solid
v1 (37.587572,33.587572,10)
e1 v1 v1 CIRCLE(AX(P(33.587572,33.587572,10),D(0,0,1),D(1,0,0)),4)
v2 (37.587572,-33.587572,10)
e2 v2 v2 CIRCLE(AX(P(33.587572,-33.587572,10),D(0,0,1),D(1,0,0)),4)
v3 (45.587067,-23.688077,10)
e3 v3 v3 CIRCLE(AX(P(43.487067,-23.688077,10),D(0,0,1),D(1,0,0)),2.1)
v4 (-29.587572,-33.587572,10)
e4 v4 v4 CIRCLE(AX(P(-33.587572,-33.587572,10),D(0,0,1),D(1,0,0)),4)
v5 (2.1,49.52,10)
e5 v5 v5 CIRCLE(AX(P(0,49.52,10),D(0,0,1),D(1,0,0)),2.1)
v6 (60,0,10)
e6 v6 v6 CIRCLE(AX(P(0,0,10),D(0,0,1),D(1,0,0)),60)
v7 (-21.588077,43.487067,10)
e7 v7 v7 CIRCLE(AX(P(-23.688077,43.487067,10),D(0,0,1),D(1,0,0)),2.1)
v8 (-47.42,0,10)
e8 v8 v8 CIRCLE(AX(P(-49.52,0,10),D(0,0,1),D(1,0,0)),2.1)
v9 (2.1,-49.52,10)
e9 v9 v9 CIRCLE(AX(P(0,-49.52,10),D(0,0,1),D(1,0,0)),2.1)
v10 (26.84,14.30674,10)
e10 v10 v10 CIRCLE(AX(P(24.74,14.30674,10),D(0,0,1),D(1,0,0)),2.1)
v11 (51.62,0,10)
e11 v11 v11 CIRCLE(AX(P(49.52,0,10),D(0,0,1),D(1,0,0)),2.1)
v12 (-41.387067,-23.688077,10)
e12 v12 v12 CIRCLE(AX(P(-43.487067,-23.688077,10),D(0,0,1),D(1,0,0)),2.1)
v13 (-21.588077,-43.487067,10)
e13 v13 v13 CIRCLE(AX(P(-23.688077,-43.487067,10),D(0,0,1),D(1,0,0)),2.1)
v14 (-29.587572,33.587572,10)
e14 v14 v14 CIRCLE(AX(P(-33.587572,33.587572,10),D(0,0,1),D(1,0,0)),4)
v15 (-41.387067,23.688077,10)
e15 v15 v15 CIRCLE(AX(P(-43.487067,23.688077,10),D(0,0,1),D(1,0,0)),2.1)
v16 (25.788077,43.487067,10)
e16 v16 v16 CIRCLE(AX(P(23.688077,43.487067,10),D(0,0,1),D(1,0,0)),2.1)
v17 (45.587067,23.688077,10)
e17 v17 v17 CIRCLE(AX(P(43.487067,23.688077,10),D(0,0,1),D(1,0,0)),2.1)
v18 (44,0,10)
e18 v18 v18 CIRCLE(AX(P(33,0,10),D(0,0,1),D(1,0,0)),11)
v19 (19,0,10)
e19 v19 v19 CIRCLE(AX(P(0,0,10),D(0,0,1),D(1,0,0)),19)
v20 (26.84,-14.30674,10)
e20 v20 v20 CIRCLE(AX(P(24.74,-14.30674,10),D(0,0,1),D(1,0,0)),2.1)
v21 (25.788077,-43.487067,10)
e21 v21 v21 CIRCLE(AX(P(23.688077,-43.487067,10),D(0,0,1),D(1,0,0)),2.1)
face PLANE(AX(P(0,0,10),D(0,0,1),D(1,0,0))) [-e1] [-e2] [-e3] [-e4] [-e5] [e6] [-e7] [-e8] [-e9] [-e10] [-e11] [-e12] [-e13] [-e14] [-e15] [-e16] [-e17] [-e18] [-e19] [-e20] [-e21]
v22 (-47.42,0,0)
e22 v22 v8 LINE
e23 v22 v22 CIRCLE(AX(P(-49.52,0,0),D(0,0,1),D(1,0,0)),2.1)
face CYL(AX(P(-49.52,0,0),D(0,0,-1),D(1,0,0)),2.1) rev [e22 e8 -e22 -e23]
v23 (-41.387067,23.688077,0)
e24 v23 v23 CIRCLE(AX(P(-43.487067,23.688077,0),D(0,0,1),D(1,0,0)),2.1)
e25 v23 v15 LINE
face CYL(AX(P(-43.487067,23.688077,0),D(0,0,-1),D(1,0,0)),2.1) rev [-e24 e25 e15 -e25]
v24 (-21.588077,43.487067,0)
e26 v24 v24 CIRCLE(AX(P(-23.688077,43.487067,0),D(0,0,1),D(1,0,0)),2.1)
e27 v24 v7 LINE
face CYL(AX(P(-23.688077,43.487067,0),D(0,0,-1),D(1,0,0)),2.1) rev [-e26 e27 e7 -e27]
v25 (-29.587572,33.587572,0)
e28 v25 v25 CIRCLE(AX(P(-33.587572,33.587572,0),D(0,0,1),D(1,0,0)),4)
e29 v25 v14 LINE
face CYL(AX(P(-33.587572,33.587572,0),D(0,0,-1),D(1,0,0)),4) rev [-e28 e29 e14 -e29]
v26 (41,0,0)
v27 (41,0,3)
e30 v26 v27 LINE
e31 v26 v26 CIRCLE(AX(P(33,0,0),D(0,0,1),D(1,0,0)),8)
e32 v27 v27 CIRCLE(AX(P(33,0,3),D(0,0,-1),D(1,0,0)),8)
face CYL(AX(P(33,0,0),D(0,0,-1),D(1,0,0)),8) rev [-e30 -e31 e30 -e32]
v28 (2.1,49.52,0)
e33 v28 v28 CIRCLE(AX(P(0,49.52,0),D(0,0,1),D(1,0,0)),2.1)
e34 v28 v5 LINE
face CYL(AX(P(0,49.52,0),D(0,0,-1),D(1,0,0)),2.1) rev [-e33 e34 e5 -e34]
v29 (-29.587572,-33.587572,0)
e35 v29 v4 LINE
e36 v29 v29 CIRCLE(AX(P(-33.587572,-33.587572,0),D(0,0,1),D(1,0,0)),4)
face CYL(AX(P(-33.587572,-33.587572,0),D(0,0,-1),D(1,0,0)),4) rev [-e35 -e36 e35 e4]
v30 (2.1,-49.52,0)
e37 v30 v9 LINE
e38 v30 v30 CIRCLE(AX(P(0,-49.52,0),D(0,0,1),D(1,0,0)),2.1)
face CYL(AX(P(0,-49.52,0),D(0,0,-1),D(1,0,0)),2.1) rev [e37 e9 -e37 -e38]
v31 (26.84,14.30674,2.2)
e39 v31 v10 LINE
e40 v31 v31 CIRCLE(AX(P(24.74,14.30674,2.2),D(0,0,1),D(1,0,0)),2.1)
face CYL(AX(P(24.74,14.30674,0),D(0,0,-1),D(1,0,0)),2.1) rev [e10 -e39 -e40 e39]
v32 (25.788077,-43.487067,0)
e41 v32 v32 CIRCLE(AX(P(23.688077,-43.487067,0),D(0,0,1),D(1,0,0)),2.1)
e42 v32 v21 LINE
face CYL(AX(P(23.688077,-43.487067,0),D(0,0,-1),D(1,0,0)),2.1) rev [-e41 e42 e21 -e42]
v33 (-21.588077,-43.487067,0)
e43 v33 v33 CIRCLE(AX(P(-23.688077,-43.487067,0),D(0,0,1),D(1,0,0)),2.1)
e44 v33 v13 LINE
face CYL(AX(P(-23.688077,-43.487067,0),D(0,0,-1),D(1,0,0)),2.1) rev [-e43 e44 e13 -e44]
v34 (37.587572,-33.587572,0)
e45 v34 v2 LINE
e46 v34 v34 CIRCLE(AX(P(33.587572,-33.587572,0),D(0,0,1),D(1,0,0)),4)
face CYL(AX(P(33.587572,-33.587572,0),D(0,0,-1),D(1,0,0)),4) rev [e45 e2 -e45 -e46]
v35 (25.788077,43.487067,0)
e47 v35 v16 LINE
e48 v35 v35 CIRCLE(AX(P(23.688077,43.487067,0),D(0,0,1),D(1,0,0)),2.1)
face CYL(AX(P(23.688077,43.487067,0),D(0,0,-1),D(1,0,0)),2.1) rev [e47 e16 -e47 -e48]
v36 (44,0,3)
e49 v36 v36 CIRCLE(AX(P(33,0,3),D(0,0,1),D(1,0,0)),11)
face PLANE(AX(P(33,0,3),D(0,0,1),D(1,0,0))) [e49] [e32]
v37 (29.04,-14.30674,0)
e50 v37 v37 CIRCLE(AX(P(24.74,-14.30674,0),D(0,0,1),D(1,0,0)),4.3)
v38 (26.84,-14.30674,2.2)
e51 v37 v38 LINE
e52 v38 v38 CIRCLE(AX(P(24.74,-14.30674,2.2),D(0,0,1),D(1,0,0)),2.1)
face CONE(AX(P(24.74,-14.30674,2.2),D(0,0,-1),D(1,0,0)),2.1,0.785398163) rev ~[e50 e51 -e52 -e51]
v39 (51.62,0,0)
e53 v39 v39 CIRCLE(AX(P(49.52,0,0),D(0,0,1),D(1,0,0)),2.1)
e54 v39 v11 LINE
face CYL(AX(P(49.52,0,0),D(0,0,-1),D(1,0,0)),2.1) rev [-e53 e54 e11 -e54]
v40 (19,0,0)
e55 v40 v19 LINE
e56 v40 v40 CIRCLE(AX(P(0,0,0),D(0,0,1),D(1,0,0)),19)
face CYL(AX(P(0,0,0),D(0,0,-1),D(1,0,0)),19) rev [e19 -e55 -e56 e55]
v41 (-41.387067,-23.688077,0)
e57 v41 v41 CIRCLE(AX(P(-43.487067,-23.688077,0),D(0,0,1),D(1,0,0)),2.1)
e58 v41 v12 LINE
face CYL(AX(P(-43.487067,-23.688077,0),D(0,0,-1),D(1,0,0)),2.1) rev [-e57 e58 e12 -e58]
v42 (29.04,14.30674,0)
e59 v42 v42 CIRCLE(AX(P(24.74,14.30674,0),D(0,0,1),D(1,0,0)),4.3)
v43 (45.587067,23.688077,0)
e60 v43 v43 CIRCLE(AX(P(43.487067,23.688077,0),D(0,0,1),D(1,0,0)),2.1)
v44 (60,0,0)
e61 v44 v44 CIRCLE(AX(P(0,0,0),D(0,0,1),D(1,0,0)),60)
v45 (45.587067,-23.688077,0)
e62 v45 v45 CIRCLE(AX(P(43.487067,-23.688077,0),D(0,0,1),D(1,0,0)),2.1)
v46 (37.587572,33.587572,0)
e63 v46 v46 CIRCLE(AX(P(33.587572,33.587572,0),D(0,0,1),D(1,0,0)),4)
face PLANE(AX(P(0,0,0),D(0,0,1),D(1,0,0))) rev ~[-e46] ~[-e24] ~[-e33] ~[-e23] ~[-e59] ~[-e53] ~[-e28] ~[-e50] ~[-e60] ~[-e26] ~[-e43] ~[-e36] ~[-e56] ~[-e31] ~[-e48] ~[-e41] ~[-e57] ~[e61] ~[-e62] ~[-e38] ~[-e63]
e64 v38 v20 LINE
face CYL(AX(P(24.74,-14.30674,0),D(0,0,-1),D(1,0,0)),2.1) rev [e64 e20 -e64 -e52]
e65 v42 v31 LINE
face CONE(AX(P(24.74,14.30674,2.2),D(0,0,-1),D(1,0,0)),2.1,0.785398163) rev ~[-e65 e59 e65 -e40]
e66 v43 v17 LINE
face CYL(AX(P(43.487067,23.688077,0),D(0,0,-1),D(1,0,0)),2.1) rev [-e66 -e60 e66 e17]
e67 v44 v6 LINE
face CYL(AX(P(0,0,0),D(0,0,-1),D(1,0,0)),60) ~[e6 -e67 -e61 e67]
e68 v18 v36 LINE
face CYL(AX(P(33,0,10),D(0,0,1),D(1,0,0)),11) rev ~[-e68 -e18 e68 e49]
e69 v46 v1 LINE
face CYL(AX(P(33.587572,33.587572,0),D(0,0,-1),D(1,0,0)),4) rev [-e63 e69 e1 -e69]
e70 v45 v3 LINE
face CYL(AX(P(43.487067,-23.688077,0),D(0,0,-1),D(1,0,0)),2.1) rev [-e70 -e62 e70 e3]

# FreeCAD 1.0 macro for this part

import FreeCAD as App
import Part
import Sketcher

V = App.Vector
Q = App.Units.Quantity


def edges_at(feature, points):
    """Names of the edges that pass closest to the given points."""
    edges = feature.Shape.Edges
    near = lambda p: min(range(len(edges)), key=lambda i: edges[i].distToShape(Part.Vertex(*p))[0])
    return sorted({f"Edge{near(p) + 1}" for p in points})

doc = App.newDocument("Part")
body = doc.addObject("PartDesign::Body", "Body")

sketch1 = body.newObject("Sketcher::SketchObject", "Sketch")
sketch1.AttachmentSupport = (doc.getObject("XY_Plane"), [""])
sketch1.MapMode = "FlatFace"
sketch1.addGeometry([
    Part.Circle(V(0, 0, 0), V(0, 0, 1), 60),
    Part.Circle(V(-33.587572, -33.587572, 0), V(0, 0, 1), 4),
    Part.Circle(V(-23.688077, -43.487067, 0), V(0, 0, 1), 2.1),
    Part.Circle(V(-43.487067, -23.688077, 0), V(0, 0, 1), 2.1),
    Part.Circle(V(0, -49.52, 0), V(0, 0, 1), 2.1),
    Part.Circle(V(23.688077, -43.487067, 0), V(0, 0, 1), 2.1),
    Part.Circle(V(33.587572, -33.587572, 0), V(0, 0, 1), 4),
    Part.Circle(V(24.74, -14.30674, 0), V(0, 0, 1), 2.1),
    Part.Circle(V(43.487067, -23.688077, 0), V(0, 0, 1), 2.1),
    Part.Circle(V(-49.52, 0, 0), V(0, 0, 1), 2.1),
    Part.Circle(V(-43.487067, 23.688077, 0), V(0, 0, 1), 2.1),
    Part.Circle(V(-33.587572, 33.587572, 0), V(0, 0, 1), 4),
    Part.Circle(V(-23.688077, 43.487067, 0), V(0, 0, 1), 2.1),
    Part.Circle(V(0, 0, 0), V(0, 0, 1), 19),
    Part.Circle(V(24.74, 14.30674, 0), V(0, 0, 1), 2.1),
    Part.Circle(V(33, 0, 0), V(0, 0, 1), 8),
    Part.Circle(V(49.52, 0, 0), V(0, 0, 1), 2.1),
    Part.Circle(V(43.487067, 23.688077, 0), V(0, 0, 1), 2.1),
    Part.Circle(V(0, 49.52, 0), V(0, 0, 1), 2.1),
    Part.Circle(V(23.688077, 43.487067, 0), V(0, 0, 1), 2.1),
    Part.Circle(V(33.587572, 33.587572, 0), V(0, 0, 1), 4),
], False)
sketch1.addConstraint([
    Sketcher.Constraint("Coincident", 0, 3, -1, 1),
    Sketcher.Constraint("Coincident", 13, 3, -1, 1),
    Sketcher.Constraint("Equal", 2, 3),
    Sketcher.Constraint("Equal", 3, 4),
    Sketcher.Constraint("Equal", 4, 5),
    Sketcher.Constraint("Equal", 1, 6),
    Sketcher.Constraint("Equal", 5, 7),
    Sketcher.Constraint("Equal", 7, 8),
    Sketcher.Constraint("Equal", 8, 9),
    Sketcher.Constraint("Equal", 9, 10),
    Sketcher.Constraint("Equal", 6, 11),
    Sketcher.Constraint("Equal", 10, 12),
    Sketcher.Constraint("Equal", 12, 14),
    Sketcher.Constraint("Equal", 14, 16),
    Sketcher.Constraint("Equal", 16, 17),
    Sketcher.Constraint("Equal", 17, 18),
    Sketcher.Constraint("Equal", 18, 19),
    Sketcher.Constraint("Equal", 11, 20),
    Sketcher.Constraint("Symmetric", 8, 3, 10, 3, -1, 1),
    Sketcher.Constraint("Symmetric", 6, 3, 11, 3, -1, 1),
    Sketcher.Constraint("Symmetric", 5, 3, 12, 3, -1, 1),
    Sketcher.Constraint("Symmetric", 9, 3, 16, 3, -1, 1),
    Sketcher.Constraint("Symmetric", 3, 3, 17, 3, -1, 1),
    Sketcher.Constraint("Symmetric", 4, 3, 18, 3, -1, 1),
    Sketcher.Constraint("Symmetric", 2, 3, 19, 3, -1, 1),
    Sketcher.Constraint("Symmetric", 1, 3, 20, 3, -1, 1),
    Sketcher.Constraint("Symmetric", 2, 3, 5, 3, -2),
    Sketcher.Constraint("Symmetric", 1, 3, 6, 3, -2),
    Sketcher.Constraint("Symmetric", 3, 3, 8, 3, -2),
    Sketcher.Constraint("Symmetric", 7, 3, 14, 3, -1),
    Sketcher.Constraint("PointOnObject", 4, 3, -2),
    Sketcher.Constraint("PointOnObject", 9, 3, -1),
    Sketcher.Constraint("PointOnObject", 15, 3, -1),
    Sketcher.Constraint("Diameter", 0, Q("120 mm")),
    Sketcher.Constraint("Diameter", 1, Q("8 mm")),
    Sketcher.Constraint("Diameter", 13, Q("38 mm")),
    Sketcher.Constraint("Diameter", 15, Q("16 mm")),
    Sketcher.Constraint("Diameter", 2, Q("4.2 mm")),
    Sketcher.Constraint("DistanceX", -1, 1, 15, 3, Q("33 mm")),
    Sketcher.Constraint("DistanceY", 4, 3, -1, 1, Q("49.52 mm")),
    Sketcher.Constraint("DistanceX", -1, 1, 7, 3, Q("24.74 mm")),
    Sketcher.Constraint("DistanceX", 9, 3, -1, 1, Q("49.52 mm")),
    Sketcher.Constraint("DistanceY", 7, 3, -1, 1, Q("14.30674 mm")),
    Sketcher.Constraint("DistanceX", 3, 3, 2, 3, Q("19.79899 mm")),
    Sketcher.Constraint("DistanceY", 2, 3, 3, 3, Q("19.79899 mm")),
    Sketcher.Constraint("DistanceY", 4, 3, 1, 3, Q("15.932428 mm")),
    Sketcher.Constraint("DistanceX", 1, 3, 5, 3, Q("57.275649 mm")),
    Sketcher.Constraint("DistanceX", 9, 3, 1, 3, Q("15.932428 mm")),
    Sketcher.Constraint("DistanceY", 1, 3, 10, 3, Q("57.275649 mm")),
])
pad1 = body.newObject("PartDesign::Pad", "Pad")
pad1.Profile = sketch1
pad1.Length = 10

sketch2 = body.newObject("Sketcher::SketchObject", "Sketch001")
sketch2.AttachmentSupport = (doc.getObject("XY_Plane"), [""])
sketch2.MapMode = "FlatFace"
sketch2.AttachmentOffset = App.Placement(V(0, 0, 10), App.Rotation())
sketch2.addGeometry(Part.Circle(V(33, 0, 0), V(0, 0, 1), 11), False)
sketch2.addConstraint([
    Sketcher.Constraint("PointOnObject", 0, 3, -1),
    Sketcher.Constraint("Diameter", 0, Q("22 mm")),
    Sketcher.Constraint("DistanceX", -1, 1, 0, 3, Q("33 mm")),
])
pocket1 = body.newObject("PartDesign::Pocket", "Pocket")
pocket1.Profile = sketch2
pocket1.Length = 7
doc.recompute()

chamfer = body.newObject("PartDesign::Chamfer", "Chamfer")
chamfer.Base = (pocket1, edges_at(pocket1, [(22.64, -14.307, 0), (22.64, 14.307, 0)]))
chamfer.Size = 2.2

doc.recompute()
